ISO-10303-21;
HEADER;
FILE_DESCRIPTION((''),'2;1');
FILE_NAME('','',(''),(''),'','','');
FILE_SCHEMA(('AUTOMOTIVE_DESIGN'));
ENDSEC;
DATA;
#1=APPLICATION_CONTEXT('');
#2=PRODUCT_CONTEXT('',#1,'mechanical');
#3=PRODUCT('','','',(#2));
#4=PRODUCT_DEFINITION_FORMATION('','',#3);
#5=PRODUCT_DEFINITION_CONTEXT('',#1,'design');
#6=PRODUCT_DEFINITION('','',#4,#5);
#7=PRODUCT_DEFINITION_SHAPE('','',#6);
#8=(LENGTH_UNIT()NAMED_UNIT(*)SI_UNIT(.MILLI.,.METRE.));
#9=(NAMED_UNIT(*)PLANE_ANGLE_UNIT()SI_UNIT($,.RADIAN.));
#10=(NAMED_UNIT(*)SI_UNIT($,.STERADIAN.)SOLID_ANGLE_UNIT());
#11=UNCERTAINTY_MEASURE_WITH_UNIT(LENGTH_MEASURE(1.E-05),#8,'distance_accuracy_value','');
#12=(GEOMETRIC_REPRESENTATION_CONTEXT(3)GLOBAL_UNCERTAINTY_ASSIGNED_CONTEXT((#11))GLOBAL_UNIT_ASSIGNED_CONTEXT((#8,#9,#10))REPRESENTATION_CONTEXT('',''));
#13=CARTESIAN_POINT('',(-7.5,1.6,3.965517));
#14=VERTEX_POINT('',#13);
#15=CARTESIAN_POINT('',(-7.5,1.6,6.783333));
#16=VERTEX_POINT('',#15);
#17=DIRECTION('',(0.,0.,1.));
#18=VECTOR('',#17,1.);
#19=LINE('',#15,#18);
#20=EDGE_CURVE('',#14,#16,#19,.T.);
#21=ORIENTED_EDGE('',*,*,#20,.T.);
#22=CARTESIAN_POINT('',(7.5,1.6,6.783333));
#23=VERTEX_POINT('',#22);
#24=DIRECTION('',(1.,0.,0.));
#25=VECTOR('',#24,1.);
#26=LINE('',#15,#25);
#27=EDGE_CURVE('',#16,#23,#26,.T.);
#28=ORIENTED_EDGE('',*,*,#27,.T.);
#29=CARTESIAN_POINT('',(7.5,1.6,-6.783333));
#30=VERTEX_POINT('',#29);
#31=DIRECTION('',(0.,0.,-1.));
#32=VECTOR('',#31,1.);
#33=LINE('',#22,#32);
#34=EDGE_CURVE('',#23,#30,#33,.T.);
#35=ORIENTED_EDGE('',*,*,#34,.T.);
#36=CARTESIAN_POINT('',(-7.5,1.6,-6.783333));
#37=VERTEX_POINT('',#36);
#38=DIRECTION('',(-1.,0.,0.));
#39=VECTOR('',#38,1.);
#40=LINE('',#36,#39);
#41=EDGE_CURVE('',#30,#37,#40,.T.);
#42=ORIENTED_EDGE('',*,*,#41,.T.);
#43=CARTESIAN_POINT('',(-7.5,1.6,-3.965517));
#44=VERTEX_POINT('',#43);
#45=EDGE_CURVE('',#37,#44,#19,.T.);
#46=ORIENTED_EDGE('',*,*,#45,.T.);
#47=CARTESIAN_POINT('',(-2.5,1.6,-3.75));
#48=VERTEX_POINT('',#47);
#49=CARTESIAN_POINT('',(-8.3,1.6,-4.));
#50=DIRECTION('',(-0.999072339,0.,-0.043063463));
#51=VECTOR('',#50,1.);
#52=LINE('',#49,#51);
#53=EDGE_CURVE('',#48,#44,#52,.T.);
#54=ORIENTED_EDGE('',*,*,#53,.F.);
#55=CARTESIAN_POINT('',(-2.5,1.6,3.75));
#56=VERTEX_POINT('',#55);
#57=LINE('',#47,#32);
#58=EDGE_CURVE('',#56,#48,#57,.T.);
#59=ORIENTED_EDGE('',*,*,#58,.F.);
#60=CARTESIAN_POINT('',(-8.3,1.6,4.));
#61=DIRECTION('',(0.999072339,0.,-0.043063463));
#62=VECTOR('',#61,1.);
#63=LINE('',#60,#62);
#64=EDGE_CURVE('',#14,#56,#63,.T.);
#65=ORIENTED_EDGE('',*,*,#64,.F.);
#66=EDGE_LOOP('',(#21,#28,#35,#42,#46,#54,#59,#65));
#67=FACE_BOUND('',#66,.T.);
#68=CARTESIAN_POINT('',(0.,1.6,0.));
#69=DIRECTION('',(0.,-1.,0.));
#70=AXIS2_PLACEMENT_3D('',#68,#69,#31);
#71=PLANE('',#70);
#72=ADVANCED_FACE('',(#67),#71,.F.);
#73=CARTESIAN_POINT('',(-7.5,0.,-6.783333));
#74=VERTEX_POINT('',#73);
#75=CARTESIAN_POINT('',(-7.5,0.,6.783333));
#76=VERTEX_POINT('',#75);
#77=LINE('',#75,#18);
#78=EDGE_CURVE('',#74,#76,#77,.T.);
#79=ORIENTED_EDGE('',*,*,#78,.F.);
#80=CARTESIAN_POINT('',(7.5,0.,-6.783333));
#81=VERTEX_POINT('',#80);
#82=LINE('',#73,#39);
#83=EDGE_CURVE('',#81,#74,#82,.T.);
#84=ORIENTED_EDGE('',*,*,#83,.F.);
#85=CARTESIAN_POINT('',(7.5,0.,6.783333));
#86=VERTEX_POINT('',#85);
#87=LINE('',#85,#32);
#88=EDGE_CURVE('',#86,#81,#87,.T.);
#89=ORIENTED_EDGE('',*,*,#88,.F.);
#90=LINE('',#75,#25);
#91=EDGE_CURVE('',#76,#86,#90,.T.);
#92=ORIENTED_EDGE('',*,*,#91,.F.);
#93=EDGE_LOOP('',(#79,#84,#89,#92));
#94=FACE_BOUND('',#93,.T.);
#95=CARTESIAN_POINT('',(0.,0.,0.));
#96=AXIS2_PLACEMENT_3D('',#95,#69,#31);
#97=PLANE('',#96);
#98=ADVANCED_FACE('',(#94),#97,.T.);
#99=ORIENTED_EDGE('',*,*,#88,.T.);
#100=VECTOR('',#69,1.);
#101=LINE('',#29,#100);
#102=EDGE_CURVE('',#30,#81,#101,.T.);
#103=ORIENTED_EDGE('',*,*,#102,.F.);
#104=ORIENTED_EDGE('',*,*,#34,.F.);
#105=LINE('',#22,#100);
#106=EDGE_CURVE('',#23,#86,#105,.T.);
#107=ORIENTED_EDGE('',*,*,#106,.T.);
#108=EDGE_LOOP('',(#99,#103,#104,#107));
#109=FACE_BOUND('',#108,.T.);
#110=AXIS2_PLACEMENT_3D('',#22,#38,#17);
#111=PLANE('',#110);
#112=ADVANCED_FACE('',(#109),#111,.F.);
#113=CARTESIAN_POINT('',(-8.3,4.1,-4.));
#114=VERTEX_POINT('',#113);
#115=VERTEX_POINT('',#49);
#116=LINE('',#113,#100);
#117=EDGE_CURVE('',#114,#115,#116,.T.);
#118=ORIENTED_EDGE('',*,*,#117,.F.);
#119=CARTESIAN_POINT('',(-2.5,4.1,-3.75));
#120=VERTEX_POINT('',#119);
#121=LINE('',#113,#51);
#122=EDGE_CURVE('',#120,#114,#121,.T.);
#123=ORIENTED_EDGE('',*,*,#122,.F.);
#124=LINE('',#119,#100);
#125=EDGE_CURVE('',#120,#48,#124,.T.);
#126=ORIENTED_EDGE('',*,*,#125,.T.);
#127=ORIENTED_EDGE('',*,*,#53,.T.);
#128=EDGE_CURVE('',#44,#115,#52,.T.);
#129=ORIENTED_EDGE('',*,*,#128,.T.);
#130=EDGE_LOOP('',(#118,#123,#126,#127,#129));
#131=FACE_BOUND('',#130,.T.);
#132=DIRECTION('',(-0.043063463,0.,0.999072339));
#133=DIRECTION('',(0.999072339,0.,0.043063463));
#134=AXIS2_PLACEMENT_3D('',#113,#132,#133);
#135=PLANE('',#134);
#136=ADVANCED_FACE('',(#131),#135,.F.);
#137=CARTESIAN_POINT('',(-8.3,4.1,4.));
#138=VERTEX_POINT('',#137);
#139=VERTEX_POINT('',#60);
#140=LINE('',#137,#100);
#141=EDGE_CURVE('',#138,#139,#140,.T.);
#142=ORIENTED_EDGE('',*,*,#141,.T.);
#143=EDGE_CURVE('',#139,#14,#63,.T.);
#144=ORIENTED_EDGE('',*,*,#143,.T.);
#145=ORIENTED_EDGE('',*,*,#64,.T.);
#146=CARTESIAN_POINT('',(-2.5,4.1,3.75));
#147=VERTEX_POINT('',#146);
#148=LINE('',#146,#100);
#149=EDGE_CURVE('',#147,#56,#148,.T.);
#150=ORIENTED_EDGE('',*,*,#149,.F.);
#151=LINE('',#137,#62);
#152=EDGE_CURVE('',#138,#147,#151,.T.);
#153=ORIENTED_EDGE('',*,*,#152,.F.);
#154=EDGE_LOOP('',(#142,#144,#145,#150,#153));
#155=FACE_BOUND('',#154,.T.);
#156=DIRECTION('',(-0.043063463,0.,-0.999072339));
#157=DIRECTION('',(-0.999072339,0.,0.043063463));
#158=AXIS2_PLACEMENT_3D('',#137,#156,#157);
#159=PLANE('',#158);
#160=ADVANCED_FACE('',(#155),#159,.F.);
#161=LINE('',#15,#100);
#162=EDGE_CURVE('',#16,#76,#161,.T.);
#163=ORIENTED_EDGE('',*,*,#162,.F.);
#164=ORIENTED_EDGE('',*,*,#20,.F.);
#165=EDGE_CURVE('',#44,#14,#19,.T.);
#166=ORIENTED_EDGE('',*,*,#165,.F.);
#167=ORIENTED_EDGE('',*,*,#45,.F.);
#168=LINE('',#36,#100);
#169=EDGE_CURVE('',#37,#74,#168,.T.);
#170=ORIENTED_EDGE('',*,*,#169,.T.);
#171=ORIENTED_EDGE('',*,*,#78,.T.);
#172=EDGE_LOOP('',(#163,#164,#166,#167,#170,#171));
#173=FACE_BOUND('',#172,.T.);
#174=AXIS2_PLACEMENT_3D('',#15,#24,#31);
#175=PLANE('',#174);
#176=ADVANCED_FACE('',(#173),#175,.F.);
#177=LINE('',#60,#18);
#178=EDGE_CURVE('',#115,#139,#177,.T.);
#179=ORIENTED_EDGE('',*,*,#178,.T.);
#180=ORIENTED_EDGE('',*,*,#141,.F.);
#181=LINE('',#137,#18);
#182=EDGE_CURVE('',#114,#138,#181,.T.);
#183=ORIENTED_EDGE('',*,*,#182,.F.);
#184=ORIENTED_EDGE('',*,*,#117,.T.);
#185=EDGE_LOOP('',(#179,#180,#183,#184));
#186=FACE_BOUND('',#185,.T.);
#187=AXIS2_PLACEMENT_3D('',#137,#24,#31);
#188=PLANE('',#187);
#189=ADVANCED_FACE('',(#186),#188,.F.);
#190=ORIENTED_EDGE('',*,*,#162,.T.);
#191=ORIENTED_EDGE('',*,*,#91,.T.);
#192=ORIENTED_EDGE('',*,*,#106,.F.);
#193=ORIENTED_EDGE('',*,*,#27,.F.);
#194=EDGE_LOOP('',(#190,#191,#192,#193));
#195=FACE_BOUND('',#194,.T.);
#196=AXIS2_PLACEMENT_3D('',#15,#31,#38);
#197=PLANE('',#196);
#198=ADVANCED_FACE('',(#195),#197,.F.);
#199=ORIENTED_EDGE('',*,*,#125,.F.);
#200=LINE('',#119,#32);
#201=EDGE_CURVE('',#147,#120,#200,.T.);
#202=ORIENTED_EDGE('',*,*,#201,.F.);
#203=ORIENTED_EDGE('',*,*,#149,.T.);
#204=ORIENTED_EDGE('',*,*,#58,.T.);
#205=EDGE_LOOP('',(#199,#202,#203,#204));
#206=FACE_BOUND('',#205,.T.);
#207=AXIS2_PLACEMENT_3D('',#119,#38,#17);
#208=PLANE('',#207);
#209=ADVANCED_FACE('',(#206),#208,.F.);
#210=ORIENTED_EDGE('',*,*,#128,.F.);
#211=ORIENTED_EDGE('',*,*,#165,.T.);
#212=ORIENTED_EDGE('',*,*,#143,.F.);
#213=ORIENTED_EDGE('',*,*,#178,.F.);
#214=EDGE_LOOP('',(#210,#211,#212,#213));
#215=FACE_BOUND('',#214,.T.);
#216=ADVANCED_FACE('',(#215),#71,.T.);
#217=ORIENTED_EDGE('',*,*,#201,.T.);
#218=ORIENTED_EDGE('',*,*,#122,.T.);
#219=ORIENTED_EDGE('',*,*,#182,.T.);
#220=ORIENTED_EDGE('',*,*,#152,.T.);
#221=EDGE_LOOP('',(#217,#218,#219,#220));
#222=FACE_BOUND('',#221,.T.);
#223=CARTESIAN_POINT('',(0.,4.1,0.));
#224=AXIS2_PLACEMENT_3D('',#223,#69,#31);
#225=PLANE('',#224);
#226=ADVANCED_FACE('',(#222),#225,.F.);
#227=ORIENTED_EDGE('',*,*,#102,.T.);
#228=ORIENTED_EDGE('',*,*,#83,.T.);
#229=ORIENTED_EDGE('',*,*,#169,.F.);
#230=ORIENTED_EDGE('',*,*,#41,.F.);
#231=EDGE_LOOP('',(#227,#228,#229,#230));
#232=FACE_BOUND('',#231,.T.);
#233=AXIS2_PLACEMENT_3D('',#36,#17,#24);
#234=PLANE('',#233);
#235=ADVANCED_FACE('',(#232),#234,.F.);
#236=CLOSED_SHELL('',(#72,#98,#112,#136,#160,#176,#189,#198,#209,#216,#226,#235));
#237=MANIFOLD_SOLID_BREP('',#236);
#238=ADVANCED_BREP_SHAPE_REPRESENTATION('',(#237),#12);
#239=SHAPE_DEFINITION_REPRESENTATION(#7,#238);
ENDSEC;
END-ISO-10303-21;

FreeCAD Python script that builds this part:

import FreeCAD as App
import Part
import Sketcher
Q = App.Units.Quantity

doc = App.newDocument("Part")
body = doc.addObject("PartDesign::Body", "Body")

sketch1 = body.newObject("Sketcher::SketchObject", "Sketch")
sketch1.AttachmentSupport = (doc.getObject("XZ_Plane"), [""])
sketch1.MapMode = "FlatFace"
sketch1.addGeometry([
    Part.LineSegment(App.Vector(-8, -7, 0), App.Vector(-8, 7, 0)),
    Part.LineSegment(App.Vector(-8, 7, 0), App.Vector(8, 7, 0)),
    Part.LineSegment(App.Vector(8, 7, 0), App.Vector(8, -7, 0)),
    Part.LineSegment(App.Vector(8, -7, 0), App.Vector(-8, -7, 0)),
], False)
sketch1.addConstraint([
    Sketcher.Constraint("Coincident", 0, 2, 1, 1),
    Sketcher.Constraint("Coincident", 1, 2, 2, 1),
    Sketcher.Constraint("Coincident", 2, 2, 3, 1),
    Sketcher.Constraint("Coincident", 3, 2, 0, 1),
    Sketcher.Constraint("Vertical", 0),
    Sketcher.Constraint("Horizontal", 1),
    Sketcher.Constraint("Vertical", 2),
    Sketcher.Constraint("Horizontal", 3),
    Sketcher.Constraint("Symmetric", 0, 2, 2, 2, -1, 1),
    Sketcher.Constraint("DistanceX", 1, 1, 1, 2, Q("15 mm")),
    Sketcher.Constraint("DistanceY", 0, 1, 0, 2, Q("13.566667 mm")),
])
pad1 = body.newObject("PartDesign::Pad", "Pad")
pad1.Profile = sketch1
pad1.Length = 1.6
pad1.Reversed = True

sketch2 = body.newObject("Sketcher::SketchObject", "Sketch001")
sketch2.AttachmentSupport = (doc.getObject("XZ_Plane"), [""])
sketch2.MapMode = "FlatFace"
sketch2.AttachmentOffset = App.Placement(App.Vector(0, 0, -1.6), App.Rotation())
sketch2.addGeometry([
    Part.LineSegment(App.Vector(-8.3, -4, 0), App.Vector(-8.3, 4, 0)),
    Part.LineSegment(App.Vector(-8.3, 4, 0), App.Vector(-2.5, 3.75, 0)),
    Part.LineSegment(App.Vector(-2.5, 3.75, 0), App.Vector(-2.5, -3.75, 0)),
    Part.LineSegment(App.Vector(-2.5, -3.75, 0), App.Vector(-8.3, -4, 0)),
], False)
sketch2.addConstraint([
    Sketcher.Constraint("Coincident", 0, 2, 1, 1),
    Sketcher.Constraint("Coincident", 1, 2, 2, 1),
    Sketcher.Constraint("Coincident", 2, 2, 3, 1),
    Sketcher.Constraint("Coincident", 3, 2, 0, 1),
    Sketcher.Constraint("Vertical", 0),
    Sketcher.Constraint("Vertical", 2),
    Sketcher.Constraint("Equal", 1, 3),
    Sketcher.Constraint("DistanceY", 0, 1, 0, 2, Q("8 mm")),
    Sketcher.Constraint("DistanceY", 2, 2, 2, 1, Q("7.5 mm")),
    Sketcher.Constraint("DistanceY", -1, 1, 0, 2, Q("4 mm")),
    Sketcher.Constraint("DistanceX", 0, 2, -1, 1, Q("8.3 mm")),
    Sketcher.Constraint("DistanceX", 1, 2, -1, 1, Q("2.5 mm")),
])
pad2 = body.newObject("PartDesign::Pad", "Pad001")
pad2.Profile = sketch2
pad2.Length = 2.5
pad2.Reversed = True

doc.recompute()
